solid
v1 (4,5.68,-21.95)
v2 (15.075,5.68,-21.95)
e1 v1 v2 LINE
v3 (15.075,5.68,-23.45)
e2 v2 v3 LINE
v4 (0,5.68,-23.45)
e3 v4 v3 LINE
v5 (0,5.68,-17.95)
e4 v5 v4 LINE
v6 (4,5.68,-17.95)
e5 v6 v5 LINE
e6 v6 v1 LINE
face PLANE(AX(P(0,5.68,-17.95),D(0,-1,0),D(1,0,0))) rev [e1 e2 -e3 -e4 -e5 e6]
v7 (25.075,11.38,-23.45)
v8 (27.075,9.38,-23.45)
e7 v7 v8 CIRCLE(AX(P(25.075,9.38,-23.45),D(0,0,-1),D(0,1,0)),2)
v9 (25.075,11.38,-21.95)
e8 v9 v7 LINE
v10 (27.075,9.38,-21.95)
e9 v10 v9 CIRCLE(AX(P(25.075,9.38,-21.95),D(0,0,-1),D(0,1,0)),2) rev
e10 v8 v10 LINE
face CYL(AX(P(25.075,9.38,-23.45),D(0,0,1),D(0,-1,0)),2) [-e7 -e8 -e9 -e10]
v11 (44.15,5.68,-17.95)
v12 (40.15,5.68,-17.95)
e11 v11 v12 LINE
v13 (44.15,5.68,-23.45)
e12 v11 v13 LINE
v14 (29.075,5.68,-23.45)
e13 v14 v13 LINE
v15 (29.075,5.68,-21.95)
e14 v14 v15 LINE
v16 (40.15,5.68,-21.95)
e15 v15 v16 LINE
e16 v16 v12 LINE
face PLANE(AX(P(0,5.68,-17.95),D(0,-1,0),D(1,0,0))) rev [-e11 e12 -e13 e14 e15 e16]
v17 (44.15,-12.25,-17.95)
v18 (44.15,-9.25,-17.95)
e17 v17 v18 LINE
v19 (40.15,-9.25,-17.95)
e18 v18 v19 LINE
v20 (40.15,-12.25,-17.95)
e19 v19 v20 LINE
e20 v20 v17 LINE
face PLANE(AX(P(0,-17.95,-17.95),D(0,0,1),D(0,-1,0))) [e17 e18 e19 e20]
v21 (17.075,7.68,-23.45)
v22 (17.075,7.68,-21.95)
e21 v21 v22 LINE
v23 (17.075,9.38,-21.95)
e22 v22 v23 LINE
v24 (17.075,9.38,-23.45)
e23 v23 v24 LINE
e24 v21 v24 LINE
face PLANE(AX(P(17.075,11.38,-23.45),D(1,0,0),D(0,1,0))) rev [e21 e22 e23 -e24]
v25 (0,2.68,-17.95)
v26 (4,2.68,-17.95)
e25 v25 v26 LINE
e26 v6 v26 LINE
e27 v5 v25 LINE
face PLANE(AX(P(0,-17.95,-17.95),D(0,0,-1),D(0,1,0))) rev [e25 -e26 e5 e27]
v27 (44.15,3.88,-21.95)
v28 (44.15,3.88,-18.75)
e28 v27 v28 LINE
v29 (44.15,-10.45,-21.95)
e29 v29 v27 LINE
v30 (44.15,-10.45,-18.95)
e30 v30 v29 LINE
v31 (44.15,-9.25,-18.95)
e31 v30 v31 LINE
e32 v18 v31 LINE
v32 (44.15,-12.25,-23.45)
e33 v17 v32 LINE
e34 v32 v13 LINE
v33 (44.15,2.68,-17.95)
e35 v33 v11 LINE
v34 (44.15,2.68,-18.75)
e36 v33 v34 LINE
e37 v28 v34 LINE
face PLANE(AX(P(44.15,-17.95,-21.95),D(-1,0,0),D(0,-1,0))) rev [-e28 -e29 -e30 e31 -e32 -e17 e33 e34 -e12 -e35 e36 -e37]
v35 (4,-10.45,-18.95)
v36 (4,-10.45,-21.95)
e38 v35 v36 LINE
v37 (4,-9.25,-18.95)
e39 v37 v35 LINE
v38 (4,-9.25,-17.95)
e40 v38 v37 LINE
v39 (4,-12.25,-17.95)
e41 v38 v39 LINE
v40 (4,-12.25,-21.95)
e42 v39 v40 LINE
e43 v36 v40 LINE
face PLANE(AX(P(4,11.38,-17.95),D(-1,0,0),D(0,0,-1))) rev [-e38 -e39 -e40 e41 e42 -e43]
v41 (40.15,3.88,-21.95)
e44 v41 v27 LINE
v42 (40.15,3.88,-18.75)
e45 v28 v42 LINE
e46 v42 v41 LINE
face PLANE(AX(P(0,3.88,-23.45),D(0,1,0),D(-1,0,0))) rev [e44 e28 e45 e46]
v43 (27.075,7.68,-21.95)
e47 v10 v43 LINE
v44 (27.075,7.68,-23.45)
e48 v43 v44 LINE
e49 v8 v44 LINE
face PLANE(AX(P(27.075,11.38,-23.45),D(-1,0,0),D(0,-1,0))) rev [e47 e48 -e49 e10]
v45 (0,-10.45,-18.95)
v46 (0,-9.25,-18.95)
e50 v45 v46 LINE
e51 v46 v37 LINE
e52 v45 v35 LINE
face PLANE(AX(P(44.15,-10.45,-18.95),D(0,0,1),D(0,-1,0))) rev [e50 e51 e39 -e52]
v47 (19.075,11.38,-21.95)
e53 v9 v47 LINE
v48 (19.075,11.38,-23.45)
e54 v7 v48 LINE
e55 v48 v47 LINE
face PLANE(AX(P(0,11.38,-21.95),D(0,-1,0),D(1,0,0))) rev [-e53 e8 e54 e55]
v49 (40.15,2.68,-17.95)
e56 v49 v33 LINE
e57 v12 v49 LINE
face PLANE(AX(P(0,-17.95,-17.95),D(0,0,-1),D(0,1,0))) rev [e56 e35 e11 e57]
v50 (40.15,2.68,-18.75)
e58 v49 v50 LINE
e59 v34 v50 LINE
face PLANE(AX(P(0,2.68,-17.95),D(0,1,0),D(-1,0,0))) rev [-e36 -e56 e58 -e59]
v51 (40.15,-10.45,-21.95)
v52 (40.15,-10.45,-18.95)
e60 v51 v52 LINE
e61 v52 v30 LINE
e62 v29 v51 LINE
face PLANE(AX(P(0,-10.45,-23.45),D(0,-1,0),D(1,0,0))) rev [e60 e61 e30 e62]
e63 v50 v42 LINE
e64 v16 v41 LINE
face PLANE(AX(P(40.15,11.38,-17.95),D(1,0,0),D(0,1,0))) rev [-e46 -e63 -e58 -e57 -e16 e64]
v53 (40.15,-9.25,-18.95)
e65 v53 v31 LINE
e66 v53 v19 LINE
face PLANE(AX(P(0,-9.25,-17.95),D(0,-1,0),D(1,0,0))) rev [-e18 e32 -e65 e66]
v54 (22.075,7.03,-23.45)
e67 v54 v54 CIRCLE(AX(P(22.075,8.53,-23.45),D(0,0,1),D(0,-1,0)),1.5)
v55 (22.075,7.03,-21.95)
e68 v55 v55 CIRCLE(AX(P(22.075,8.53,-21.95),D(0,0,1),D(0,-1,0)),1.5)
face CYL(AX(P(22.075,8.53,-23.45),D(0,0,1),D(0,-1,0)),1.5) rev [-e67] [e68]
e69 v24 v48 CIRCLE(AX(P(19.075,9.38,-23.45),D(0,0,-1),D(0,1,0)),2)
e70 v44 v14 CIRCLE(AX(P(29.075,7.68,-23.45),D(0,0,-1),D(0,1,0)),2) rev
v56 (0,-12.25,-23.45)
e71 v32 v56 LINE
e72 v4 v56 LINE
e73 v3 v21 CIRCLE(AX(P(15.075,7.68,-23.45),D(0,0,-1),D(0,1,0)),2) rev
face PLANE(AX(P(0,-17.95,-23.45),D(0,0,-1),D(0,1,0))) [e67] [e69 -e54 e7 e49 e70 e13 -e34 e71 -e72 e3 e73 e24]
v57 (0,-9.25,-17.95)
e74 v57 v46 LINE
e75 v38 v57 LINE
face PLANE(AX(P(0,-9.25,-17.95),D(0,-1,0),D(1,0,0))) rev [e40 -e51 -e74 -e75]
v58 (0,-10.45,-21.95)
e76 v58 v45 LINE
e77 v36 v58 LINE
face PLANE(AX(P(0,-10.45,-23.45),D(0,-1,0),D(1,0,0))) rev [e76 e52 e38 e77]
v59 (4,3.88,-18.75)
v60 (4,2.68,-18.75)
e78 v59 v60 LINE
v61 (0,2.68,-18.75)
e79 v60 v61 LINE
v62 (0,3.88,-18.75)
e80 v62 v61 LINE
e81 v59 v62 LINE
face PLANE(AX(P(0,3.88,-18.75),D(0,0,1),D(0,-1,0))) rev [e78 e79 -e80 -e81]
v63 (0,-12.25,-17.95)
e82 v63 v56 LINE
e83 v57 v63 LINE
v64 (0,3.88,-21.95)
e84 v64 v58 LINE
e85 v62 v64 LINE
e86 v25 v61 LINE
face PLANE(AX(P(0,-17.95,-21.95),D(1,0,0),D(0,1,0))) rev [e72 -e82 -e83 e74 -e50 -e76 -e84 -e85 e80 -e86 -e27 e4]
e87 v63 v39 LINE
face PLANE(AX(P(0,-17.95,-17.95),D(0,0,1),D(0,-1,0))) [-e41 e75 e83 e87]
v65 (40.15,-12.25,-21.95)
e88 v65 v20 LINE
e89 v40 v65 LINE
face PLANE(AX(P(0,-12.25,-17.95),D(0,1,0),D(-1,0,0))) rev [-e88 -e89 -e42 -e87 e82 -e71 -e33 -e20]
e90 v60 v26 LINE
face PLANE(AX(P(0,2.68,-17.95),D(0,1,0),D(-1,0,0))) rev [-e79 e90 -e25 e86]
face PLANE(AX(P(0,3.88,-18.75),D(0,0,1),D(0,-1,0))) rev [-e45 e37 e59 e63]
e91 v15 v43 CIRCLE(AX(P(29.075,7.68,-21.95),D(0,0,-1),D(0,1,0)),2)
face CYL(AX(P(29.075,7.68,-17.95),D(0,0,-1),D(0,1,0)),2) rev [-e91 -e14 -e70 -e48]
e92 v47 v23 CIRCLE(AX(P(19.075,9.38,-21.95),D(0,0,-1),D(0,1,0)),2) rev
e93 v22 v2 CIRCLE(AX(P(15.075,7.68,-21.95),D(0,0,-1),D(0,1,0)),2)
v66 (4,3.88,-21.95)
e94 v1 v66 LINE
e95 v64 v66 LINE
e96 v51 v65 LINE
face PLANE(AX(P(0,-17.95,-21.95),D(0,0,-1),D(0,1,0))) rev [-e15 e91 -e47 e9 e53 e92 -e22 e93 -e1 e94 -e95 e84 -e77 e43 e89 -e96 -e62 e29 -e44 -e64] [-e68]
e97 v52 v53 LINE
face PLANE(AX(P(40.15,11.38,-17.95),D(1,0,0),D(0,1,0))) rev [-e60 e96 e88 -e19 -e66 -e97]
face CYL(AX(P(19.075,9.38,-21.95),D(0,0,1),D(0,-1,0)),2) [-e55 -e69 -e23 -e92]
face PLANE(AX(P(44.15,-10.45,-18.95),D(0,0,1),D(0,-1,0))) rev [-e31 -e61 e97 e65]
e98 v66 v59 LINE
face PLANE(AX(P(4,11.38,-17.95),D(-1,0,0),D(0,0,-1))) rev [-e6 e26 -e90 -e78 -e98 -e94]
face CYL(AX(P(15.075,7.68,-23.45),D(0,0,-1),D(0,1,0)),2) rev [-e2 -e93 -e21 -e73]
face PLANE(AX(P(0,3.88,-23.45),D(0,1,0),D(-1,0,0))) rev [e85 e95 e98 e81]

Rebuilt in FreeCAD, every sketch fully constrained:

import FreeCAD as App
import Part
import Sketcher
from FreeCAD import Vector


def edges_at(feature, points):
    """Names of the edges that pass closest to the given points."""
    edges = feature.Shape.Edges
    near = lambda p: min(range(len(edges)), key=lambda i: edges[i].distToShape(Part.Vertex(*p))[0])
    return sorted({f"Edge{near(p) + 1}" for p in points})

doc = App.newDocument("Part")
params = doc.addObject("Spreadsheet::Sheet", "Params")
for row, (alias, value) in enumerate([
    ("sketch1_width", "44.15 mm"),
    ("sketch1_height", "29.33 mm"),
    ("pad1_length", "1.5 mm"),
    ("sketch2_height", "3 mm"),
    ("sketch2_width", "44.15 mm"),
    ("pad2_length", "4 mm"),
    ("sketch3_height", "3.2 mm"),
    ("sketch3_width", "44.15 mm"),
    ("pocket1_length", "1.2 mm"),
    ("sketch4_height", "3 mm"),
    ("sketch4_width", "44.15 mm"),
    ("pocket2_length", "1.2 mm"),
    ("sketch5_diameter", "3 mm"),
    ("sketch6_height", "5.7 mm"),
    ("sketch6_width", "44.15 mm"),
    ("sketch7_height", "4 mm"),
    ("sketch7_width", "36.15 mm"),
    ("sketch8_height", "5.7 mm"),
    ("fillet_radius", "2 mm"),
], start=1):
    params.set(f"A{row}", alias)
    params.set(f"B{row}", "=" + value)
    params.setAlias(f"B{row}", alias)

body = doc.addObject("PartDesign::Body", "Body")

# Sketch on XZ plane
sketch1 = body.newObject("Sketcher::SketchObject", "Sketch")
sketch1.AttachmentSupport = (doc.getObject("XZ_Plane"), [""])
sketch1.MapMode = "FlatFace"
sketch1.addGeometry(Part.LineSegment(Vector(0, -29, 0), Vector(0, 0, 0)), False)
sketch1.addGeometry(Part.LineSegment(Vector(0, 0, 0), Vector(44, 0, 0)), False)
sketch1.addGeometry(Part.LineSegment(Vector(44, 0, 0), Vector(44, -29, 0)), False)
sketch1.addGeometry(Part.LineSegment(Vector(44, -29, 0), Vector(0, -29, 0)), False)
sketch1.addConstraint(Sketcher.Constraint("Coincident", 0, 2, 1, 1))
sketch1.addConstraint(Sketcher.Constraint("Coincident", 1, 2, 2, 1))
sketch1.addConstraint(Sketcher.Constraint("Coincident", 2, 2, 3, 1))
sketch1.addConstraint(Sketcher.Constraint("Coincident", 3, 2, 0, 1))
sketch1.addConstraint(Sketcher.Constraint("Vertical", 0))
sketch1.addConstraint(Sketcher.Constraint("Horizontal", 1))
sketch1.addConstraint(Sketcher.Constraint("Vertical", 2))
sketch1.addConstraint(Sketcher.Constraint("Horizontal", 3))
sketch1.addConstraint(Sketcher.Constraint("Coincident", 0, 2, -1, 1))
sketch1.addConstraint(Sketcher.Constraint("DistanceX", 1, 1, 1, 2, 44.15))
sketch1.addConstraint(Sketcher.Constraint("DistanceY", 0, 1, 0, 2, 29.33))
sketch1.setExpression("Constraints[9]", "Params.sketch1_width")
sketch1.setExpression("Constraints[10]", "Params.sketch1_height")
pad1 = body.newObject("PartDesign::Pad", "Pad")
pad1.Profile = sketch1
pad1.setExpression("Length", "Params.pad1_length")
pad1.Reversed = True

# Sketch on XZ plane
sketch2 = body.newObject("Sketcher::SketchObject", "Sketch001")
sketch2.AttachmentSupport = (doc.getObject("XZ_Plane"), [""])
sketch2.MapMode = "FlatFace"
sketch2.AttachmentOffset = App.Placement(Vector(0, 0, -1.5), App.Rotation())
sketch2.addGeometry(Part.LineSegment(Vector(0, -23.6, 0), Vector(0, -20.6, 0)), False)
sketch2.addGeometry(Part.LineSegment(Vector(0, -20.6, 0), Vector(44.1, -20.6, 0)), False)
sketch2.addGeometry(Part.LineSegment(Vector(44.1, -20.6, 0), Vector(44.1, -23.6, 0)), False)
sketch2.addGeometry(Part.LineSegment(Vector(44.1, -23.6, 0), Vector(0, -23.6, 0)), False)
sketch2.addGeometry(Part.LineSegment(Vector(0, -8.7, 0), Vector(0, -5.7, 0)), False)
sketch2.addGeometry(Part.LineSegment(Vector(0, -5.7, 0), Vector(44.1, -5.7, 0)), False)
sketch2.addGeometry(Part.LineSegment(Vector(44.1, -5.7, 0), Vector(44.1, -8.7, 0)), False)
sketch2.addGeometry(Part.LineSegment(Vector(44.1, -8.7, 0), Vector(0, -8.7, 0)), False)
sketch2.addConstraint(Sketcher.Constraint("Coincident", 0, 2, 1, 1))
sketch2.addConstraint(Sketcher.Constraint("Coincident", 1, 2, 2, 1))
sketch2.addConstraint(Sketcher.Constraint("Coincident", 2, 2, 3, 1))
sketch2.addConstraint(Sketcher.Constraint("Coincident", 3, 2, 0, 1))
sketch2.addConstraint(Sketcher.Constraint("Coincident", 4, 2, 5, 1))
sketch2.addConstraint(Sketcher.Constraint("Coincident", 5, 2, 6, 1))
sketch2.addConstraint(Sketcher.Constraint("Coincident", 6, 2, 7, 1))
sketch2.addConstraint(Sketcher.Constraint("Coincident", 7, 2, 4, 1))
sketch2.addConstraint(Sketcher.Constraint("Vertical", 0))
sketch2.addConstraint(Sketcher.Constraint("Horizontal", 1))
sketch2.addConstraint(Sketcher.Constraint("Vertical", 2))
sketch2.addConstraint(Sketcher.Constraint("Horizontal", 3))
sketch2.addConstraint(Sketcher.Constraint("Vertical", 4))
sketch2.addConstraint(Sketcher.Constraint("Horizontal", 5))
sketch2.addConstraint(Sketcher.Constraint("Vertical", 6))
sketch2.addConstraint(Sketcher.Constraint("Horizontal", 7))
sketch2.addConstraint(Sketcher.Constraint("PointOnObject", 0, 2, -2))
sketch2.addConstraint(Sketcher.Constraint("PointOnObject", 4, 2, -2))
sketch2.addConstraint(Sketcher.Constraint("Vertical", 2, 2, 5, 2))
sketch2.addConstraint(Sketcher.Constraint("Equal", 2, 4))
sketch2.addConstraint(Sketcher.Constraint("DistanceY", 0, 1, 0, 2, 3.0))
sketch2.addConstraint(Sketcher.Constraint("DistanceX", 1, 1, 1, 2, 44.15))
sketch2.addConstraint(Sketcher.Constraint("DistanceY", 4, 2, -1, 1, 5.7))
sketch2.addConstraint(Sketcher.Constraint("DistanceY", 0, 2, -1, 1, 20.63))
sketch2.setExpression("Constraints[20]", "Params.sketch2_height")
sketch2.setExpression("Constraints[21]", "Params.sketch2_width")
pad2 = body.newObject("PartDesign::Pad", "Pad001")
pad2.Profile = sketch2
pad2.setExpression("Length", "Params.pad2_length")
pad2.Reversed = True

# Sketch on XY plane
sketch3 = body.newObject("Sketcher::SketchObject", "Sketch002")
sketch3.AttachmentSupport = (doc.getObject("XY_Plane"), [""])
sketch3.MapMode = "FlatFace"
sketch3.AttachmentOffset = App.Placement(Vector(0, 0, -20.63), App.Rotation())
sketch3.addGeometry(Part.LineSegment(Vector(0, 4.7, 0), Vector(0, 1.5, 0)), False)
sketch3.addGeometry(Part.LineSegment(Vector(0, 1.5, 0), Vector(44.1, 1.5, 0)), False)
sketch3.addGeometry(Part.LineSegment(Vector(44.1, 1.5, 0), Vector(44.1, 4.7, 0)), False)
sketch3.addGeometry(Part.LineSegment(Vector(44.1, 4.7, 0), Vector(0, 4.7, 0)), False)
sketch3.addConstraint(Sketcher.Constraint("Coincident", 0, 2, 1, 1))
sketch3.addConstraint(Sketcher.Constraint("Coincident", 1, 2, 2, 1))
sketch3.addConstraint(Sketcher.Constraint("Coincident", 2, 2, 3, 1))
sketch3.addConstraint(Sketcher.Constraint("Coincident", 3, 2, 0, 1))
sketch3.addConstraint(Sketcher.Constraint("Vertical", 0))
sketch3.addConstraint(Sketcher.Constraint("Horizontal", 1))
sketch3.addConstraint(Sketcher.Constraint("Vertical", 2))
sketch3.addConstraint(Sketcher.Constraint("Horizontal", 3))
sketch3.addConstraint(Sketcher.Constraint("PointOnObject", 0, 2, -2))
sketch3.addConstraint(Sketcher.Constraint("DistanceY", 0, 2, 0, 1, 3.2))
sketch3.addConstraint(Sketcher.Constraint("DistanceX", 1, 1, 1, 2, 44.15))
sketch3.addConstraint(Sketcher.Constraint("DistanceY", -1, 1, 0, 2, 1.5))
sketch3.setExpression("Constraints[9]", "Params.sketch3_height")
sketch3.setExpression("Constraints[10]", "Params.sketch3_width")
pocket1 = body.newObject("PartDesign::Pocket", "Pocket")
pocket1.Profile = sketch3
pocket1.setExpression("Length", "Params.pocket1_length")

# Sketch on XY plane
sketch4 = body.newObject("Sketcher::SketchObject", "Sketch003")
sketch4.AttachmentSupport = (doc.getObject("XY_Plane"), [""])
sketch4.MapMode = "FlatFace"
sketch4.AttachmentOffset = App.Placement(Vector(0, 0, -8.7), App.Rotation())
sketch4.addGeometry(Part.LineSegment(Vector(44.1, 4.5, 0), Vector(44.1, 1.5, 0)), False)
sketch4.addGeometry(Part.LineSegment(Vector(44.1, 1.5, 0), Vector(0, 1.5, 0)), False)
sketch4.addGeometry(Part.LineSegment(Vector(0, 1.5, 0), Vector(0, 4.5, 0)), False)
sketch4.addGeometry(Part.LineSegment(Vector(0, 4.5, 0), Vector(44.1, 4.5, 0)), False)
sketch4.addConstraint(Sketcher.Constraint("Coincident", 0, 2, 1, 1))
sketch4.addConstraint(Sketcher.Constraint("Coincident", 1, 2, 2, 1))
sketch4.addConstraint(Sketcher.Constraint("Coincident", 2, 2, 3, 1))
sketch4.addConstraint(Sketcher.Constraint("Coincident", 3, 2, 0, 1))
sketch4.addConstraint(Sketcher.Constraint("Vertical", 0))
sketch4.addConstraint(Sketcher.Constraint("Horizontal", 1))
sketch4.addConstraint(Sketcher.Constraint("Vertical", 2))
sketch4.addConstraint(Sketcher.Constraint("Horizontal", 3))
sketch4.addConstraint(Sketcher.Constraint("PointOnObject", 1, 2, -2))
sketch4.addConstraint(Sketcher.Constraint("DistanceY", 0, 2, 0, 1, 3.0))
sketch4.addConstraint(Sketcher.Constraint("DistanceX", 1, 2, 1, 1, 44.15))
sketch4.addConstraint(Sketcher.Constraint("DistanceY", -1, 1, 0, 2, 1.5))
sketch4.setExpression("Constraints[9]", "Params.sketch4_height")
sketch4.setExpression("Constraints[10]", "Params.sketch4_width")
pocket2 = body.newObject("PartDesign::Pocket", "Pocket001")
pocket2.Profile = sketch4
pocket2.setExpression("Length", "Params.pocket2_length")
pocket2.Reversed = True

# Sketch on XZ plane
sketch5 = body.newObject("Sketcher::SketchObject", "Sketch004")
sketch5.AttachmentSupport = (doc.getObject("XZ_Plane"), [""])
sketch5.MapMode = "FlatFace"
sketch5.AttachmentOffset = App.Placement(Vector(0, 0, -1.5), App.Rotation())
sketch5.addGeometry(Part.Circle(Vector(22.1, -26.5, 0), Vector(0, 0, 1), 1.5), False)
sketch5.addGeometry(Part.Circle(Vector(22.1, -2.9, 0), Vector(0, 0, 1), 1.5), False)
sketch5.addConstraint(Sketcher.Constraint("Equal", 0, 1))
sketch5.addConstraint(Sketcher.Constraint("Vertical", 0, 3, 1, 3))
sketch5.addConstraint(Sketcher.Constraint("Diameter", 0, 3.0))
sketch5.addConstraint(Sketcher.Constraint("DistanceY", 0, 3, -1, 1, 26.48))
sketch5.addConstraint(Sketcher.Constraint("DistanceY", 1, 3, -1, 1, 2.85))
sketch5.addConstraint(Sketcher.Constraint("DistanceX", -1, 1, 0, 3, 22.075))
sketch5.setExpression("Constraints[2]", "Params.sketch5_diameter")
pocket3 = body.newObject("PartDesign::Pocket", "Pocket002")
pocket3.Profile = sketch5
pocket3.Type = "ThroughAll"
pocket3.Reversed = True

# Sketch on XZ plane
sketch6 = body.newObject("Sketcher::SketchObject", "Sketch005")
sketch6.AttachmentSupport = (doc.getObject("XZ_Plane"), [""])
sketch6.MapMode = "FlatFace"
sketch6.addGeometry(Part.LineSegment(Vector(0, -6, 0), Vector(0, 0, 0)), False)
sketch6.addGeometry(Part.LineSegment(Vector(0, 0, 0), Vector(44, 0, 0)), False)
sketch6.addGeometry(Part.LineSegment(Vector(44, 0, 0), Vector(44, -6, 0)), False)
sketch6.addGeometry(Part.LineSegment(Vector(44, -6, 0), Vector(0, -6, 0)), False)
sketch6.addConstraint(Sketcher.Constraint("Coincident", 0, 2, 1, 1))
sketch6.addConstraint(Sketcher.Constraint("Coincident", 1, 2, 2, 1))
sketch6.addConstraint(Sketcher.Constraint("Coincident", 2, 2, 3, 1))
sketch6.addConstraint(Sketcher.Constraint("Coincident", 3, 2, 0, 1))
sketch6.addConstraint(Sketcher.Constraint("Vertical", 0))
sketch6.addConstraint(Sketcher.Constraint("Horizontal", 1))
sketch6.addConstraint(Sketcher.Constraint("Vertical", 2))
sketch6.addConstraint(Sketcher.Constraint("Horizontal", 3))
sketch6.addConstraint(Sketcher.Constraint("Coincident", 0, 2, -1, 1))
sketch6.addConstraint(Sketcher.Constraint("DistanceY", 0, 1, 0, 2, 5.7))
sketch6.addConstraint(Sketcher.Constraint("DistanceX", 1, 1, 1, 2, 44.15))
sketch6.setExpression("Constraints[9]", "Params.sketch6_height")
sketch6.setExpression("Constraints[10]", "Params.sketch6_width")
pocket4 = body.newObject("PartDesign::Pocket", "Pocket003")
pocket4.Profile = sketch6
pocket4.Type = "ThroughAll"

# Sketch on XY plane
sketch7 = body.newObject("Sketcher::SketchObject", "Sketch006")
sketch7.AttachmentSupport = (doc.getObject("XY_Plane"), [""])
sketch7.MapMode = "FlatFace"
sketch7.AttachmentOffset = App.Placement(Vector(0, 0, -5.7), App.Rotation())
sketch7.addGeometry(Part.LineSegment(Vector(4, 5.5, 0), Vector(4, 1.5, 0)), False)
sketch7.addGeometry(Part.LineSegment(Vector(4, 1.5, 0), Vector(40.1, 1.5, 0)), False)
sketch7.addGeometry(Part.LineSegment(Vector(40.1, 1.5, 0), Vector(40.1, 5.5, 0)), False)
sketch7.addGeometry(Part.LineSegment(Vector(40.1, 5.5, 0), Vector(4, 5.5, 0)), False)
sketch7.addConstraint(Sketcher.Constraint("Coincident", 0, 2, 1, 1))
sketch7.addConstraint(Sketcher.Constraint("Coincident", 1, 2, 2, 1))
sketch7.addConstraint(Sketcher.Constraint("Coincident", 2, 2, 3, 1))
sketch7.addConstraint(Sketcher.Constraint("Coincident", 3, 2, 0, 1))
sketch7.addConstraint(Sketcher.Constraint("Vertical", 0))
sketch7.addConstraint(Sketcher.Constraint("Horizontal", 1))
sketch7.addConstraint(Sketcher.Constraint("Vertical", 2))
sketch7.addConstraint(Sketcher.Constraint("Horizontal", 3))
sketch7.addConstraint(Sketcher.Constraint("DistanceY", 0, 2, 0, 1, 4.0))
sketch7.addConstraint(Sketcher.Constraint("DistanceX", -1, 1, 0, 2, 4.0))
sketch7.addConstraint(Sketcher.Constraint("DistanceX", 1, 1, 1, 2, 36.15))
sketch7.addConstraint(Sketcher.Constraint("DistanceY", -1, 1, 0, 2, 1.5))
sketch7.setExpression("Constraints[8]", "Params.sketch7_height")
sketch7.setExpression("Constraints[10]", "Params.sketch7_width")
pocket5 = body.newObject("PartDesign::Pocket", "Pocket004")
pocket5.Profile = sketch7
pocket5.Type = "ThroughAll"

# Sketch on XZ plane
sketch8 = body.newObject("Sketcher::SketchObject", "Sketch007")
sketch8.AttachmentSupport = (doc.getObject("XZ_Plane"), [""])
sketch8.MapMode = "FlatFace"
sketch8.AttachmentOffset = App.Placement(Vector(0, 0, -1.5), App.Rotation())
sketch8.addGeometry(Part.LineSegment(Vector(0, -29, 0), Vector(0, -24, 0)), False)
sketch8.addGeometry(Part.LineSegment(Vector(0, -24, 0), Vector(17, -24, 0)), False)
sketch8.addGeometry(Part.LineSegment(Vector(17, -24, 0), Vector(17, -29, 0)), False)
sketch8.addGeometry(Part.LineSegment(Vector(17, -29, 0), Vector(0, -29, 0)), False)
sketch8.addGeometry(Part.LineSegment(Vector(27, -29, 0), Vector(27, -24, 0)), False)
sketch8.addGeometry(Part.LineSegment(Vector(27, -24, 0), Vector(44, -24, 0)), False)
sketch8.addGeometry(Part.LineSegment(Vector(44, -24, 0), Vector(44, -29, 0)), False)
sketch8.addGeometry(Part.LineSegment(Vector(44, -29, 0), Vector(27, -29, 0)), False)
sketch8.addConstraint(Sketcher.Constraint("Coincident", 0, 2, 1, 1))
sketch8.addConstraint(Sketcher.Constraint("Coincident", 1, 2, 2, 1))
sketch8.addConstraint(Sketcher.Constraint("Coincident", 2, 2, 3, 1))
sketch8.addConstraint(Sketcher.Constraint("Coincident", 3, 2, 0, 1))
sketch8.addConstraint(Sketcher.Constraint("Coincident", 4, 2, 5, 1))
sketch8.addConstraint(Sketcher.Constraint("Coincident", 5, 2, 6, 1))
sketch8.addConstraint(Sketcher.Constraint("Coincident", 6, 2, 7, 1))
sketch8.addConstraint(Sketcher.Constraint("Coincident", 7, 2, 4, 1))
sketch8.addConstraint(Sketcher.Constraint("Vertical", 0))
sketch8.addConstraint(Sketcher.Constraint("Horizontal", 1))
sketch8.addConstraint(Sketcher.Constraint("Vertical", 2))
sketch8.addConstraint(Sketcher.Constraint("Horizontal", 3))
sketch8.addConstraint(Sketcher.Constraint("Vertical", 4))
sketch8.addConstraint(Sketcher.Constraint("Horizontal", 5))
sketch8.addConstraint(Sketcher.Constraint("Vertical", 6))
sketch8.addConstraint(Sketcher.Constraint("Horizontal", 7))
sketch8.addConstraint(Sketcher.Constraint("PointOnObject", 0, 2, -2))
sketch8.addConstraint(Sketcher.Constraint("Horizontal", 1, 2, 4, 2))
sketch8.addConstraint(Sketcher.Constraint("Horizontal", 3, 2, 6, 2))
sketch8.addConstraint(Sketcher.Constraint("Equal", 3, 5))
sketch8.addConstraint(Sketcher.Constraint("DistanceY", 0, 1, 0, 2, 5.7))
sketch8.addConstraint(Sketcher.Constraint("DistanceX", 1, 2, 4, 2, 10.0))
sketch8.addConstraint(Sketcher.Constraint("DistanceX", 1, 1, 1, 2, 17.075))
sketch8.addConstraint(Sketcher.Constraint("DistanceY", 0, 2, -1, 1, 23.63))
sketch8.setExpression("Constraints[20]", "Params.sketch8_height")
pocket6 = body.newObject("PartDesign::Pocket", "Pocket005")
pocket6.Profile = sketch8
pocket6.Type = "ThroughAll"
pocket6.Reversed = True
doc.recompute()

fillet = body.newObject("PartDesign::Fillet", "Fillet")
fillet.Base = (pocket6, edges_at(pocket6, [
    (17.075, 0.75, -29.33),
    (17.075, 0.75, -23.63),
    (27.075, 0.75, -29.33),
    (27.075, 0.75, -23.63),
]))
fillet.setExpression("Radius", "Params.fillet_radius")
body2 = doc.addObject("PartDesign::Body", "Body001")
doc.recompute()

body.Placement = App.Placement(Vector(0, -17.95, -23.45), App.Rotation(Vector(1, 0, 0), 90))
boolean = body2.newObject("PartDesign::Boolean", "Boolean")
boolean.Type = "Fuse"
boolean.addObjects([body])

doc.recompute()
